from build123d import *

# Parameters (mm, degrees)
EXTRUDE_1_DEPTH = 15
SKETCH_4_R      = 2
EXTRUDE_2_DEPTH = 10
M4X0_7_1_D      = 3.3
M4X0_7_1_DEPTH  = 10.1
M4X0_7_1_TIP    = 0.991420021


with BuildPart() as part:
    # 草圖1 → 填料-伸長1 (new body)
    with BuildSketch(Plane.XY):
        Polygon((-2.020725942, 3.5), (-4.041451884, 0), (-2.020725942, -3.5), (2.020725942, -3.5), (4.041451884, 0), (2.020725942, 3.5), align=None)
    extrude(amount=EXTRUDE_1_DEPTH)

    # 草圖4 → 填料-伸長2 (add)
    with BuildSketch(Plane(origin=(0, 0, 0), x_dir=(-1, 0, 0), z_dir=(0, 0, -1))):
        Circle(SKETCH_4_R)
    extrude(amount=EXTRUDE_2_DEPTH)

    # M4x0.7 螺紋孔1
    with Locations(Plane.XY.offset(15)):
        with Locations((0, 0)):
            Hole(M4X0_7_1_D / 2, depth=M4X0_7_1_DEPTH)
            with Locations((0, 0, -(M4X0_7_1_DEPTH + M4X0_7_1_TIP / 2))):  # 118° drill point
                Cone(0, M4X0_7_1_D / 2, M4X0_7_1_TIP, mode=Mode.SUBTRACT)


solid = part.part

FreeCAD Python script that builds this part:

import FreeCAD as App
import Part
import Sketcher
from FreeCAD import Vector
Q = App.Units.Quantity


def add_polygon(sketch, points):
    """Adds a closed chain of lines whose ends are joined by coincident constraints."""
    first, n = sketch.GeometryCount, len(points)
    for a, b in zip(points, points[1:] + points[:1]):
        sketch.addGeometry(Part.LineSegment(App.Vector(*a, 0), App.Vector(*b, 0)), False)
    for i in range(n):
        sketch.addConstraint(Sketcher.Constraint("Coincident", first + i, 2, first + (i + 1) % n, 1))

doc = App.newDocument("Part")
body = doc.addObject("PartDesign::Body", "Body")

sketch1 = body.newObject("Sketcher::SketchObject", "Sketch")
sketch1.AttachmentSupport = (doc.getObject("XY_Plane"), [""])
sketch1.MapMode = "FlatFace"
add_polygon(sketch1, [(-2, 3.5), (-4, 0), (-2, -3.5), (2, -3.5), (4, 0), (2, 3.5)])
sketch1.addConstraint(Sketcher.Constraint("Horizontal", 2))
sketch1.addConstraint(Sketcher.Constraint("Horizontal", 5))
sketch1.addConstraint(Sketcher.Constraint("Symmetric", 0, 2, 3, 2, -1, 1))
sketch1.addConstraint(Sketcher.Constraint("Symmetric", 1, 2, 4, 2, -1, 1))
sketch1.addConstraint(Sketcher.Constraint("PointOnObject", 0, 2, -1))
sketch1.addConstraint(Sketcher.Constraint("Parallel", 0, 3))
sketch1.addConstraint(Sketcher.Constraint("Vertical", 2, 2, 4, 2))
sketch1.addConstraint(Sketcher.Constraint("Angle", 0, Q("-120 deg")))
sketch1.addConstraint(Sketcher.Constraint("DistanceY", 2, 2, 4, 2, Q("7 mm")))
sketch1.addConstraint(Sketcher.Constraint("DistanceX", 2, 1, 2, 2, Q("4.041452 mm")))
pad1 = body.newObject("PartDesign::Pad", "Pad")
pad1.Profile = sketch1
pad1.Length = 15

sketch2 = body.newObject("Sketcher::SketchObject", "Sketch001")
sketch2.AttachmentSupport = (doc.getObject("XY_Plane"), [""])
sketch2.MapMode = "FlatFace"
sketch2.addGeometry(Part.Circle(Vector(0, 0, 0), Vector(0, 0, 1), 2), False)
sketch2.addConstraint(Sketcher.Constraint("Coincident", 0, 3, -1, 1))
sketch2.addConstraint(Sketcher.Constraint("Diameter", 0, Q("4 mm")))
pad2 = body.newObject("PartDesign::Pad", "Pad001")
pad2.Profile = sketch2
pad2.Length = 10
pad2.Reversed = True

sketch3 = body.newObject("Sketcher::SketchObject", "Sketch002")
sketch3.AttachmentSupport = (doc.getObject("XY_Plane"), [""])
sketch3.MapMode = "FlatFace"
sketch3.AttachmentOffset = App.Placement(Vector(0, 0, 15), App.Rotation())
sketch3.addGeometry(Part.Circle(Vector(0, 0, 0), Vector(0, 0, 1), 1.6), False)
sketch3.addConstraint(Sketcher.Constraint("Coincident", 0, 3, -1, 1))
sketch3.addConstraint(Sketcher.Constraint("Diameter", 0, Q("3.3 mm")))
doc.recompute()
hole = body.newObject("PartDesign::Hole", "Hole")
hole.Profile = sketch3
hole.ThreadType = "None"
hole.Diameter = 3.3
hole.DepthType = "Dimension"
hole.Depth = 10.1
hole.DrillPoint = "Angled"
hole.DrillPointAngle = 118

doc.recompute()
